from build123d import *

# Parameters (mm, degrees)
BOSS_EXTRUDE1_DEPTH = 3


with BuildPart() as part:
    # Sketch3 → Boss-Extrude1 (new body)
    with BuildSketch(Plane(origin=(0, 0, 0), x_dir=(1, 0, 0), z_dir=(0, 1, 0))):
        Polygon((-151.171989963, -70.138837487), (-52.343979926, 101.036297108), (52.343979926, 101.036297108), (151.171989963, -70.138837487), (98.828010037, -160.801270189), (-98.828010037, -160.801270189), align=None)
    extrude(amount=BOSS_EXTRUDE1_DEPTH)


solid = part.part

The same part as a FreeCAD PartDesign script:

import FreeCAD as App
import Part
import Sketcher
Q = App.Units.Quantity

doc = App.newDocument("Part")
params = doc.addObject("Spreadsheet::Sheet", "Params")
for row, (alias, value) in enumerate([
    ("pad1_length", "3 mm"),
], start=1):
    params.set(f"A{row}", alias)
    params.set(f"B{row}", "=" + value)
    params.setAlias(f"B{row}", alias)

body = doc.addObject("PartDesign::Body", "Body")

sketch1 = body.newObject("Sketcher::SketchObject", "Sketch")
sketch1.AttachmentSupport = (doc.getObject("XZ_Plane"), [""])
sketch1.MapMode = "FlatFace"
sketch1.addGeometry(Part.LineSegment(App.Vector(-52, -101, 0), App.Vector(-151, 70, 0)), False)
sketch1.addGeometry(Part.LineSegment(App.Vector(-151, 70, 0), App.Vector(-99, 161, 0)), False)
sketch1.addGeometry(Part.LineSegment(App.Vector(-99, 161, 0), App.Vector(99, 161, 0)), False)
sketch1.addGeometry(Part.LineSegment(App.Vector(99, 161, 0), App.Vector(151, 70, 0)), False)
sketch1.addGeometry(Part.LineSegment(App.Vector(151, 70, 0), App.Vector(52, -101, 0)), False)
sketch1.addGeometry(Part.LineSegment(App.Vector(52, -101, 0), App.Vector(-52, -101, 0)), False)
sketch1.addConstraint(Sketcher.Constraint("Coincident", 0, 2, 1, 1))
sketch1.addConstraint(Sketcher.Constraint("Coincident", 1, 2, 2, 1))
sketch1.addConstraint(Sketcher.Constraint("Coincident", 2, 2, 3, 1))
sketch1.addConstraint(Sketcher.Constraint("Coincident", 3, 2, 4, 1))
sketch1.addConstraint(Sketcher.Constraint("Coincident", 4, 2, 5, 1))
sketch1.addConstraint(Sketcher.Constraint("Coincident", 5, 2, 0, 1))
sketch1.addConstraint(Sketcher.Constraint("Horizontal", 2))
sketch1.addConstraint(Sketcher.Constraint("Horizontal", 5))
sketch1.addConstraint(Sketcher.Constraint("Symmetric", 0, 2, 3, 2, -2))
sketch1.addConstraint(Sketcher.Constraint("Parallel", 0, 3))
sketch1.addConstraint(Sketcher.Constraint("Parallel", 1, 4))
sketch1.addConstraint(Sketcher.Constraint("Equal", 1, 3))
sketch1.addConstraint(Sketcher.Constraint("Angle", 0, Q("120 deg")))
sketch1.addConstraint(Sketcher.Constraint("DistanceX", 0, 2, 2, 2, 250.0))
sketch1.addConstraint(Sketcher.Constraint("DistanceX", 2, 1, 2, 2, 197.65602))
sketch1.addConstraint(Sketcher.Constraint("DistanceX", 5, 2, 5, 1, 104.68796))
sketch1.addConstraint(Sketcher.Constraint("DistanceY", -1, 1, 1, 2, 160.80127))
pad1 = body.newObject("PartDesign::Pad", "Pad")
pad1.Profile = sketch1
pad1.setExpression("Length", "Params.pad1_length")
pad1.Reversed = True

doc.recompute()
